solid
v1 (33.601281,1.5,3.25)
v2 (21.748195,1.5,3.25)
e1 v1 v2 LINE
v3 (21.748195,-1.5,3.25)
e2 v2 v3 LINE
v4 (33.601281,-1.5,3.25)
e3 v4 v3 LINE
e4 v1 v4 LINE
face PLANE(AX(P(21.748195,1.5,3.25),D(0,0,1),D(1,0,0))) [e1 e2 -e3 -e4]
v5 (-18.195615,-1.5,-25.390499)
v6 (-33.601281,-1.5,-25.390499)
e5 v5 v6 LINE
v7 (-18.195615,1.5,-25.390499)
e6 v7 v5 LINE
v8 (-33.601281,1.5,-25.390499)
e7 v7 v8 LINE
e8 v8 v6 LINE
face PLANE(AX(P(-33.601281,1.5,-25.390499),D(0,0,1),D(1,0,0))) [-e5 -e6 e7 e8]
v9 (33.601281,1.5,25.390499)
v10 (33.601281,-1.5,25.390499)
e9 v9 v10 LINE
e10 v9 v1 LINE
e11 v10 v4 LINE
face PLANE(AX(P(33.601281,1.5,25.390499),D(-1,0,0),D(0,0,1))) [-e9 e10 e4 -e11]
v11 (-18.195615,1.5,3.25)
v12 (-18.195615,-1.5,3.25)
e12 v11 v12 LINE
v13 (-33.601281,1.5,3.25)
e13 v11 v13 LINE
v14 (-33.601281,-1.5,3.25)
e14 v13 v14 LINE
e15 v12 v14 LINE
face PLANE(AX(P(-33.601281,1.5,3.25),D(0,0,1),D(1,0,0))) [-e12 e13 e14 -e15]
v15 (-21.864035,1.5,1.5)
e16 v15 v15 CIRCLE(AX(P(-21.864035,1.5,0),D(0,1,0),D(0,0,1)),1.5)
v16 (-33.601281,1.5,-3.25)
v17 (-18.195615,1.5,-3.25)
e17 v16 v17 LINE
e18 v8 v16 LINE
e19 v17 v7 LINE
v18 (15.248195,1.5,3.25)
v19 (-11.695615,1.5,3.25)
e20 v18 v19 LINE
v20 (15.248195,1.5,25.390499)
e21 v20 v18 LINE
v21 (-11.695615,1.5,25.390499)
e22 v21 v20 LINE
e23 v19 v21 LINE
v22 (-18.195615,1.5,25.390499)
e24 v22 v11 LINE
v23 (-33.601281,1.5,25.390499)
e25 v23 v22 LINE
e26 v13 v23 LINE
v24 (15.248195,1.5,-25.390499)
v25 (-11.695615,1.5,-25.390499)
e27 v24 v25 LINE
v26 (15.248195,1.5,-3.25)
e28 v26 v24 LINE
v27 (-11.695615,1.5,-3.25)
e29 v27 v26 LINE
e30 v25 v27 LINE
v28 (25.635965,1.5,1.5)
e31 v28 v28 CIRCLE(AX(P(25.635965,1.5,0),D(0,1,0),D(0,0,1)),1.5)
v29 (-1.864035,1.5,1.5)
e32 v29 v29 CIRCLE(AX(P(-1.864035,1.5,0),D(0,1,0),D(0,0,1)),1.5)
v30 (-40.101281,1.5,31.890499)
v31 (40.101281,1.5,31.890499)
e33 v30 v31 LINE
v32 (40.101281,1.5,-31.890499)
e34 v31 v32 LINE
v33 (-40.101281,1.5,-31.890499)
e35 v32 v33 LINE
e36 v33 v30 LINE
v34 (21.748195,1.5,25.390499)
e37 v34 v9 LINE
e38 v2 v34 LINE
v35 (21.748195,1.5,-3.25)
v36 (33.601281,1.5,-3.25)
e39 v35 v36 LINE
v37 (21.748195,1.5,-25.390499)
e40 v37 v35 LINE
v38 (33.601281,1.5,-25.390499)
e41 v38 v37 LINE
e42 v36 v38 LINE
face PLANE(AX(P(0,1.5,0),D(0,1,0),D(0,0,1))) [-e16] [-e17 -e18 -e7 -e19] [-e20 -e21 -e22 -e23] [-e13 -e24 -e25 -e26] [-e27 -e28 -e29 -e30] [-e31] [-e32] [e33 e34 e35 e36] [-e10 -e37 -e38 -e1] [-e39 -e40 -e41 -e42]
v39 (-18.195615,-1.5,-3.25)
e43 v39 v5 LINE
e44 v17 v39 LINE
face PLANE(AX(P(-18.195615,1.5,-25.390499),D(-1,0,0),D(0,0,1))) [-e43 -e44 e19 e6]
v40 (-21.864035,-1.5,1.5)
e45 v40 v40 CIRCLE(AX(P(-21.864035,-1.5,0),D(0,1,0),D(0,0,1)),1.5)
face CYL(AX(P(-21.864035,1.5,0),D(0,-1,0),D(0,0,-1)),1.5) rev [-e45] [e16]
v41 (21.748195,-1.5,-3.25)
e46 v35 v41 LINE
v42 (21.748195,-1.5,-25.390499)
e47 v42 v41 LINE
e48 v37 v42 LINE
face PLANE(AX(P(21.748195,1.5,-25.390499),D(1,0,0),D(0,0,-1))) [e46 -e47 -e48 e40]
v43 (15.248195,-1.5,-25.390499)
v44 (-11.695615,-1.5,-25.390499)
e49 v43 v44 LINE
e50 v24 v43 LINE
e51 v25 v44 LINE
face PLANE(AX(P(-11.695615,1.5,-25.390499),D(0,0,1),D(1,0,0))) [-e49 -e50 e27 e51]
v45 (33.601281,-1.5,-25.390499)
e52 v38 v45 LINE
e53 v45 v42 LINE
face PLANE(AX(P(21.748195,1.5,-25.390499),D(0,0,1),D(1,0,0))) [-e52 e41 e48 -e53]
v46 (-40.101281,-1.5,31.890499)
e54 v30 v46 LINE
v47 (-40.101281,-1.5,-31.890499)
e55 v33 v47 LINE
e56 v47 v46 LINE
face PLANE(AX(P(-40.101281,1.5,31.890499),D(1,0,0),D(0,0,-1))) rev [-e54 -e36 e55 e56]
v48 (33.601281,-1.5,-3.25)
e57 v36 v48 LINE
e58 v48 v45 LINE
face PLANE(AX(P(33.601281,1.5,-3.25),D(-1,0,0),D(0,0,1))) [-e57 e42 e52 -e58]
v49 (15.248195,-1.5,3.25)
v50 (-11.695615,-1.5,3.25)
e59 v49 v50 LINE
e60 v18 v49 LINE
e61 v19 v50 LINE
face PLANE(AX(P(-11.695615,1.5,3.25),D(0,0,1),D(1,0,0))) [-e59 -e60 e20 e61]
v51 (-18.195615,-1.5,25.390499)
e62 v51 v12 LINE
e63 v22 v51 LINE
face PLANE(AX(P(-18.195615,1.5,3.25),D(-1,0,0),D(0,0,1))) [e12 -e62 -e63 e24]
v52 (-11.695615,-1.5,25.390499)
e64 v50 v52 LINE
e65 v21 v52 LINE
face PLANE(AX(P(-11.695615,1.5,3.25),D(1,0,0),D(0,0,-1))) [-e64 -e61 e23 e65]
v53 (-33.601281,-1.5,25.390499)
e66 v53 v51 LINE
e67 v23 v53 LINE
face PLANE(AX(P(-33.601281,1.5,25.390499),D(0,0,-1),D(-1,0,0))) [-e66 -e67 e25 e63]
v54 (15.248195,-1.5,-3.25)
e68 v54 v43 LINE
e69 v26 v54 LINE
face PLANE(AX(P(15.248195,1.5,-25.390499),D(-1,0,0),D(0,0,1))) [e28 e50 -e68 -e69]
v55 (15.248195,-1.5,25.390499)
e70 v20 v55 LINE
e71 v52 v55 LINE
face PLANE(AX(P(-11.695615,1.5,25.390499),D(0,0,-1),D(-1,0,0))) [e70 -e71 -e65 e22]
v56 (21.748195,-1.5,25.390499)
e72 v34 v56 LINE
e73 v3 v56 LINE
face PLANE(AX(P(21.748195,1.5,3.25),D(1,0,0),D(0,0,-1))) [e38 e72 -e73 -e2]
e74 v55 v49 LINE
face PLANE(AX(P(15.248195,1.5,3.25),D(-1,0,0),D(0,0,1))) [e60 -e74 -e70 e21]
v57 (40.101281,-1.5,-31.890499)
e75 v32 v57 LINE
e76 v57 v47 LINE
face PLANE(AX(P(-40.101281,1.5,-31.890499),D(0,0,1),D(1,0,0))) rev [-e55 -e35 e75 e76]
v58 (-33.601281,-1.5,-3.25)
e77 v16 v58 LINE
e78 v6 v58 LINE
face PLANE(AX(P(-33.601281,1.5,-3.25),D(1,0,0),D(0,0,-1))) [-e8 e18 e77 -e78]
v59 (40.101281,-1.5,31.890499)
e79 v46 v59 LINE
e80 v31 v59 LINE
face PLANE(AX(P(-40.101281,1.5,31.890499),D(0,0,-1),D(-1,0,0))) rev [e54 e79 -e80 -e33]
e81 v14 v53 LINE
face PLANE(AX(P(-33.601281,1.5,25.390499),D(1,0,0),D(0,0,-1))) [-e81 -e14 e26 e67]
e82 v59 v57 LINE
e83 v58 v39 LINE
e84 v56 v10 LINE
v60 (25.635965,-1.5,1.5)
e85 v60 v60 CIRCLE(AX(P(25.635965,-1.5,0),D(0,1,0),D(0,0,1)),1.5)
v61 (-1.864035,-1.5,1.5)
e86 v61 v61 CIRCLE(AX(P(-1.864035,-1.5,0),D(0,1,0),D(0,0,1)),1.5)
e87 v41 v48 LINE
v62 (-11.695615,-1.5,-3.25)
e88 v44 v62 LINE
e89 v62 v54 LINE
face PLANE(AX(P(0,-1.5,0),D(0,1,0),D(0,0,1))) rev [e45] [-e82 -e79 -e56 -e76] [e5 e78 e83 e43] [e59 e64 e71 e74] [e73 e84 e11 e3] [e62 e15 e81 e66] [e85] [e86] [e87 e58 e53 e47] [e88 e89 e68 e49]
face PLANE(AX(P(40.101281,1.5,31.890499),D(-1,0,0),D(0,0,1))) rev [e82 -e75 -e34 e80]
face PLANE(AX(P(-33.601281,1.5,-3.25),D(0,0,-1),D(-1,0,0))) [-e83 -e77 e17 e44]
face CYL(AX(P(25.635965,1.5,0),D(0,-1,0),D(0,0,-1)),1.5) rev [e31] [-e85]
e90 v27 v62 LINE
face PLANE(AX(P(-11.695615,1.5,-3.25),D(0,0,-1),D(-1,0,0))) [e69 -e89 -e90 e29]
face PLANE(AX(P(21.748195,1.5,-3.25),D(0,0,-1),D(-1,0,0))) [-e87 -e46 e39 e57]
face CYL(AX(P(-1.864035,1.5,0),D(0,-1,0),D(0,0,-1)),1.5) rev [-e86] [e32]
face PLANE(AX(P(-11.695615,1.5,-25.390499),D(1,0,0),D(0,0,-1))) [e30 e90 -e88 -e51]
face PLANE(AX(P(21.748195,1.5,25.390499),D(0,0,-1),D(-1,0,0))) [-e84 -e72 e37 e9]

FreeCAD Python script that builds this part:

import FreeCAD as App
import Part
import Sketcher

V = App.Vector
Q = App.Units.Quantity

doc = App.newDocument("Part")
body = doc.addObject("PartDesign::Body", "Body")

# Sketch on XZ plane
sketch1 = body.newObject("Sketcher::SketchObject", "Sketch")
sketch1.AttachmentSupport = (doc.getObject("XZ_Plane"), [""])
sketch1.MapMode = "FlatFace"
sketch1.addGeometry([
    Part.LineSegment(V(-40.101281, -31.890499, 0), V(-40.101281, 31.890499, 0)),  # 0
    Part.LineSegment(V(-40.101281, 31.890499, 0), V(40.101281, 31.890499, 0)),  # 1
    Part.LineSegment(V(40.101281, 31.890499, 0), V(40.101281, -31.890499, 0)),  # 2
    Part.LineSegment(V(40.101281, -31.890499, 0), V(-40.101281, -31.890499, 0)),  # 3
    Part.LineSegment(V(-18.195615, 25.390499, 0), V(-33.601281, 25.390499, 0)),  # 4
    Part.LineSegment(V(-33.601281, 25.390499, 0), V(-33.601281, 3.25, 0)),  # 5
    Part.LineSegment(V(-33.601281, 3.25, 0), V(-18.195615, 3.25, 0)),  # 6
    Part.LineSegment(V(-18.195615, 3.25, 0), V(-18.195615, 25.390499, 0)),  # 7
    Part.LineSegment(V(15.248195, 25.390499, 0), V(-11.695615, 25.390499, 0)),  # 8
    Part.LineSegment(V(-11.695615, 25.390499, 0), V(-11.695615, 3.25, 0)),  # 9
    Part.LineSegment(V(-11.695615, 3.25, 0), V(15.248195, 3.25, 0)),  # 10
    Part.LineSegment(V(15.248195, 3.25, 0), V(15.248195, 25.390499, 0)),  # 11
    Part.LineSegment(V(33.601281, 25.390499, 0), V(21.748195, 25.390499, 0)),  # 12
    Part.LineSegment(V(21.748195, 25.390499, 0), V(21.748195, 3.25, 0)),  # 13
    Part.LineSegment(V(21.748195, 3.25, 0), V(33.601281, 3.25, 0)),  # 14
    Part.LineSegment(V(33.601281, 3.25, 0), V(33.601281, 25.390499, 0)),  # 15
    Part.Circle(V(-21.864035, 0, 0), V(0, 0, 1), 1.5),  # 16
    Part.Circle(V(-1.864035, 0, 0), V(0, 0, 1), 1.5),  # 17
    Part.LineSegment(V(-18.195615, -3.25, 0), V(-33.601281, -3.25, 0)),  # 18
    Part.LineSegment(V(-33.601281, -3.25, 0), V(-33.601281, -25.390499, 0)),  # 19
    Part.LineSegment(V(-33.601281, -25.390499, 0), V(-18.195615, -25.390499, 0)),  # 20
    Part.LineSegment(V(-18.195615, -25.390499, 0), V(-18.195615, -3.25, 0)),  # 21
    Part.Circle(V(25.635965, 0, 0), V(0, 0, 1), 1.5),  # 22
    Part.LineSegment(V(15.248195, -3.25, 0), V(-11.695615, -3.25, 0)),  # 23
    Part.LineSegment(V(-11.695615, -3.25, 0), V(-11.695615, -25.390499, 0)),  # 24
    Part.LineSegment(V(-11.695615, -25.390499, 0), V(15.248195, -25.390499, 0)),  # 25
    Part.LineSegment(V(15.248195, -25.390499, 0), V(15.248195, -3.25, 0)),  # 26
    Part.LineSegment(V(33.601281, -3.25, 0), V(21.748195, -3.25, 0)),  # 27
    Part.LineSegment(V(21.748195, -3.25, 0), V(21.748195, -25.390499, 0)),  # 28
    Part.LineSegment(V(21.748195, -25.390499, 0), V(33.601281, -25.390499, 0)),  # 29
    Part.LineSegment(V(33.601281, -25.390499, 0), V(33.601281, -3.25, 0)),  # 30
], False)
sketch1.addConstraint([
    Sketcher.Constraint("Coincident", 0, 2, 1, 1),
    Sketcher.Constraint("Coincident", 1, 2, 2, 1),
    Sketcher.Constraint("Coincident", 2, 2, 3, 1),
    Sketcher.Constraint("Coincident", 3, 2, 0, 1),
    Sketcher.Constraint("Coincident", 4, 2, 5, 1),
    Sketcher.Constraint("Coincident", 5, 2, 6, 1),
    Sketcher.Constraint("Coincident", 6, 2, 7, 1),
    Sketcher.Constraint("Coincident", 7, 2, 4, 1),
    Sketcher.Constraint("Coincident", 8, 2, 9, 1),
    Sketcher.Constraint("Coincident", 9, 2, 10, 1),
    Sketcher.Constraint("Coincident", 10, 2, 11, 1),
    Sketcher.Constraint("Coincident", 11, 2, 8, 1),
    Sketcher.Constraint("Coincident", 12, 2, 13, 1),
    Sketcher.Constraint("Coincident", 13, 2, 14, 1),
    Sketcher.Constraint("Coincident", 14, 2, 15, 1),
    Sketcher.Constraint("Coincident", 15, 2, 12, 1),
    Sketcher.Constraint("Coincident", 18, 2, 19, 1),
    Sketcher.Constraint("Coincident", 19, 2, 20, 1),
    Sketcher.Constraint("Coincident", 20, 2, 21, 1),
    Sketcher.Constraint("Coincident", 21, 2, 18, 1),
    Sketcher.Constraint("Coincident", 23, 2, 24, 1),
    Sketcher.Constraint("Coincident", 24, 2, 25, 1),
    Sketcher.Constraint("Coincident", 25, 2, 26, 1),
    Sketcher.Constraint("Coincident", 26, 2, 23, 1),
    Sketcher.Constraint("Coincident", 27, 2, 28, 1),
    Sketcher.Constraint("Coincident", 28, 2, 29, 1),
    Sketcher.Constraint("Coincident", 29, 2, 30, 1),
    Sketcher.Constraint("Coincident", 30, 2, 27, 1),
    Sketcher.Constraint("Vertical", 0),
    Sketcher.Constraint("Horizontal", 1),
    Sketcher.Constraint("Vertical", 2),
    Sketcher.Constraint("Horizontal", 3),
    Sketcher.Constraint("Horizontal", 4),
    Sketcher.Constraint("Vertical", 5),
    Sketcher.Constraint("Horizontal", 6),
    Sketcher.Constraint("Vertical", 7),
    Sketcher.Constraint("Horizontal", 8),
    Sketcher.Constraint("Vertical", 9),
    Sketcher.Constraint("Horizontal", 10),
    Sketcher.Constraint("Vertical", 11),
    Sketcher.Constraint("Horizontal", 12),
    Sketcher.Constraint("Vertical", 13),
    Sketcher.Constraint("Horizontal", 14),
    Sketcher.Constraint("Vertical", 15),
    Sketcher.Constraint("Horizontal", 18),
    Sketcher.Constraint("Vertical", 19),
    Sketcher.Constraint("Horizontal", 20),
    Sketcher.Constraint("Vertical", 21),
    Sketcher.Constraint("Horizontal", 23),
    Sketcher.Constraint("Vertical", 24),
    Sketcher.Constraint("Horizontal", 25),
    Sketcher.Constraint("Vertical", 26),
    Sketcher.Constraint("Horizontal", 27),
    Sketcher.Constraint("Vertical", 28),
    Sketcher.Constraint("Horizontal", 29),
    Sketcher.Constraint("Vertical", 30),
    Sketcher.Constraint("Equal", 16, 17),
    Sketcher.Constraint("Equal", 17, 22),
    Sketcher.Constraint("Symmetric", 0, 2, 2, 2, -1, 1),
    Sketcher.Constraint("Symmetric", 14, 2, 18, 2, -1, 1),
    Sketcher.Constraint("Symmetric", 4, 2, 29, 2, -1, 1),
    Sketcher.Constraint("Symmetric", 5, 2, 14, 2, -2),
    Sketcher.Constraint("Symmetric", 7, 2, 20, 2, -1),
    Sketcher.Constraint("Symmetric", 9, 2, 23, 2, -1),
    Sketcher.Constraint("Symmetric", 11, 2, 25, 2, -1),
    Sketcher.Constraint("Symmetric", 13, 2, 27, 2, -1),
    Sketcher.Constraint("PointOnObject", 16, 3, -1),
    Sketcher.Constraint("PointOnObject", 17, 3, -1),
    Sketcher.Constraint("PointOnObject", 22, 3, -1),
    Sketcher.Constraint("Horizontal", 7, 2, 8, 2),
    Sketcher.Constraint("Horizontal", 6, 2, 9, 2),
    Sketcher.Constraint("Horizontal", 11, 2, 12, 2),
    Sketcher.Constraint("Diameter", 16, Q("3 mm")),
    Sketcher.Constraint("DistanceX", 16, 3, 17, 3, Q("20 mm")),
    Sketcher.Constraint("DistanceX", 17, 3, 22, 3, Q("27.5 mm")),
    Sketcher.Constraint("DistanceX", 0, 2, 4, 2, Q("6.5 mm")),
    Sketcher.Constraint("DistanceY", 4, 2, 0, 2, Q("6.5 mm")),
    Sketcher.Constraint("DistanceX", 7, 2, 8, 2, Q("6.5 mm")),
    Sketcher.Constraint("DistanceX", 11, 2, 12, 2, Q("6.5 mm")),
    Sketcher.Constraint("DistanceY", 18, 2, 5, 2, Q("6.5 mm")),
    Sketcher.Constraint("DistanceY", 5, 2, 5, 1, Q("22.140499 mm")),
    Sketcher.Constraint("DistanceX", 1, 1, 1, 2, Q("80.202561 mm")),
    Sketcher.Constraint("DistanceX", 8, 2, 8, 1, Q("26.94381 mm")),
    Sketcher.Constraint("DistanceX", 4, 2, 4, 1, Q("15.405666 mm")),
    Sketcher.Constraint("DistanceX", 16, 3, 6, 2, Q("3.66842 mm")),
])
pad1 = body.newObject("PartDesign::Pad", "Pad")
pad1.Profile = sketch1
pad1.Length = 3
pad1.Midplane = True

doc.recompute()
